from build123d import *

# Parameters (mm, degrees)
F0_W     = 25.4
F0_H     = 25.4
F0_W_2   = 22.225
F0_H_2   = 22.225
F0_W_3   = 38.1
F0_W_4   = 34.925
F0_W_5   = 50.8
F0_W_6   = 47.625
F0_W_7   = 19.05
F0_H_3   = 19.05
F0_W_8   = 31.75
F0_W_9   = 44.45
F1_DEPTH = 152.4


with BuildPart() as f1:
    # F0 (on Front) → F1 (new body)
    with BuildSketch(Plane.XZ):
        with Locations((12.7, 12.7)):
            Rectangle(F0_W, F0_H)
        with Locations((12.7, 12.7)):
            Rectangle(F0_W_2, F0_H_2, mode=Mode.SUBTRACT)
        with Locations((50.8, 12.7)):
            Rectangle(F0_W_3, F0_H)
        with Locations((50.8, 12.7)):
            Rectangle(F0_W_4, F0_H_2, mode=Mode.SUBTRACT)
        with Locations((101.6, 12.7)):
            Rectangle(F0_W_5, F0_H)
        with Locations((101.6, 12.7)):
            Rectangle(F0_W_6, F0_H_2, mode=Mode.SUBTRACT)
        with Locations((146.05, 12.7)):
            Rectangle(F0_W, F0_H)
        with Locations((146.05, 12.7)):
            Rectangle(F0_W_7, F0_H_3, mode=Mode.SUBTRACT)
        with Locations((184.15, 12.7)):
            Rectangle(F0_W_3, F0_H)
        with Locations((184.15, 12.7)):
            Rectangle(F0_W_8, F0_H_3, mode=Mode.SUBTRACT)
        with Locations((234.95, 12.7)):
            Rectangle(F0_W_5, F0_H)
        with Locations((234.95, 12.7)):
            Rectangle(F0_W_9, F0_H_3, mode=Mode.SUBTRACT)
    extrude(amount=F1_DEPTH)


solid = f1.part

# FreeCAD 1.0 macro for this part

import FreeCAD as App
import Part
import Sketcher
from FreeCAD import Vector
Q = App.Units.Quantity

doc = App.newDocument("Part")
body = doc.addObject("PartDesign::Body", "Body")
body.AllowCompound = True

sketch1 = body.newObject("Sketcher::SketchObject", "Sketch")
sketch1.AttachmentSupport = (doc.getObject("XZ_Plane"), [""])
sketch1.MapMode = "FlatFace"
sketch1.addGeometry(Part.LineSegment(Vector(0, 25, 0), Vector(0, 0, 0)), False)
sketch1.addGeometry(Part.LineSegment(Vector(0, 0, 0), Vector(25, 0, 0)), False)
sketch1.addGeometry(Part.LineSegment(Vector(25, 0, 0), Vector(25, 25, 0)), False)
sketch1.addGeometry(Part.LineSegment(Vector(25, 25, 0), Vector(0, 25, 0)), False)
sketch1.addGeometry(Part.LineSegment(Vector(24, 2, 0), Vector(2, 2, 0)), False)
sketch1.addGeometry(Part.LineSegment(Vector(2, 2, 0), Vector(2, 24, 0)), False)
sketch1.addGeometry(Part.LineSegment(Vector(2, 24, 0), Vector(24, 24, 0)), False)
sketch1.addGeometry(Part.LineSegment(Vector(24, 24, 0), Vector(24, 2, 0)), False)
sketch1.addGeometry(Part.LineSegment(Vector(32, 25, 0), Vector(32, 0, 0)), False)
sketch1.addGeometry(Part.LineSegment(Vector(32, 0, 0), Vector(70, 0, 0)), False)
sketch1.addGeometry(Part.LineSegment(Vector(70, 0, 0), Vector(70, 25, 0)), False)
sketch1.addGeometry(Part.LineSegment(Vector(70, 25, 0), Vector(32, 25, 0)), False)
sketch1.addGeometry(Part.LineSegment(Vector(68, 2, 0), Vector(33, 2, 0)), False)
sketch1.addGeometry(Part.LineSegment(Vector(33, 2, 0), Vector(33, 24, 0)), False)
sketch1.addGeometry(Part.LineSegment(Vector(33, 24, 0), Vector(68, 24, 0)), False)
sketch1.addGeometry(Part.LineSegment(Vector(68, 24, 0), Vector(68, 2, 0)), False)
sketch1.addGeometry(Part.LineSegment(Vector(76, 25, 0), Vector(76, 0, 0)), False)
sketch1.addGeometry(Part.LineSegment(Vector(76, 0, 0), Vector(127, 0, 0)), False)
sketch1.addGeometry(Part.LineSegment(Vector(127, 0, 0), Vector(127, 25, 0)), False)
sketch1.addGeometry(Part.LineSegment(Vector(127, 25, 0), Vector(76, 25, 0)), False)
sketch1.addGeometry(Part.LineSegment(Vector(125, 2, 0), Vector(78, 2, 0)), False)
sketch1.addGeometry(Part.LineSegment(Vector(78, 2, 0), Vector(78, 24, 0)), False)
sketch1.addGeometry(Part.LineSegment(Vector(78, 24, 0), Vector(125, 24, 0)), False)
sketch1.addGeometry(Part.LineSegment(Vector(125, 24, 0), Vector(125, 2, 0)), False)
sketch1.addGeometry(Part.LineSegment(Vector(133, 25, 0), Vector(133, 0, 0)), False)
sketch1.addGeometry(Part.LineSegment(Vector(133, 0, 0), Vector(159, 0, 0)), False)
sketch1.addGeometry(Part.LineSegment(Vector(159, 0, 0), Vector(159, 25, 0)), False)
sketch1.addGeometry(Part.LineSegment(Vector(159, 25, 0), Vector(133, 25, 0)), False)
sketch1.addGeometry(Part.LineSegment(Vector(156, 3, 0), Vector(137, 3, 0)), False)
sketch1.addGeometry(Part.LineSegment(Vector(137, 3, 0), Vector(137, 22, 0)), False)
sketch1.addGeometry(Part.LineSegment(Vector(137, 22, 0), Vector(156, 22, 0)), False)
sketch1.addGeometry(Part.LineSegment(Vector(156, 22, 0), Vector(156, 3, 0)), False)
sketch1.addGeometry(Part.LineSegment(Vector(165, 25, 0), Vector(165, 0, 0)), False)
sketch1.addGeometry(Part.LineSegment(Vector(165, 0, 0), Vector(203, 0, 0)), False)
sketch1.addGeometry(Part.LineSegment(Vector(203, 0, 0), Vector(203, 25, 0)), False)
sketch1.addGeometry(Part.LineSegment(Vector(203, 25, 0), Vector(165, 25, 0)), False)
sketch1.addGeometry(Part.LineSegment(Vector(200, 3, 0), Vector(168, 3, 0)), False)
sketch1.addGeometry(Part.LineSegment(Vector(168, 3, 0), Vector(168, 22, 0)), False)
sketch1.addGeometry(Part.LineSegment(Vector(168, 22, 0), Vector(200, 22, 0)), False)
sketch1.addGeometry(Part.LineSegment(Vector(200, 22, 0), Vector(200, 3, 0)), False)
sketch1.addGeometry(Part.LineSegment(Vector(210, 25, 0), Vector(210, 0, 0)), False)
sketch1.addGeometry(Part.LineSegment(Vector(210, 0, 0), Vector(260, 0, 0)), False)
sketch1.addGeometry(Part.LineSegment(Vector(260, 0, 0), Vector(260, 25, 0)), False)
sketch1.addGeometry(Part.LineSegment(Vector(260, 25, 0), Vector(210, 25, 0)), False)
sketch1.addGeometry(Part.LineSegment(Vector(257, 3, 0), Vector(213, 3, 0)), False)
sketch1.addGeometry(Part.LineSegment(Vector(213, 3, 0), Vector(213, 22, 0)), False)
sketch1.addGeometry(Part.LineSegment(Vector(213, 22, 0), Vector(257, 22, 0)), False)
sketch1.addGeometry(Part.LineSegment(Vector(257, 22, 0), Vector(257, 3, 0)), False)
sketch1.addConstraint(Sketcher.Constraint("Coincident", 0, 2, 1, 1))
sketch1.addConstraint(Sketcher.Constraint("Coincident", 1, 2, 2, 1))
sketch1.addConstraint(Sketcher.Constraint("Coincident", 2, 2, 3, 1))
sketch1.addConstraint(Sketcher.Constraint("Coincident", 3, 2, 0, 1))
sketch1.addConstraint(Sketcher.Constraint("Coincident", 4, 2, 5, 1))
sketch1.addConstraint(Sketcher.Constraint("Coincident", 5, 2, 6, 1))
sketch1.addConstraint(Sketcher.Constraint("Coincident", 6, 2, 7, 1))
sketch1.addConstraint(Sketcher.Constraint("Coincident", 7, 2, 4, 1))
sketch1.addConstraint(Sketcher.Constraint("Coincident", 8, 2, 9, 1))
sketch1.addConstraint(Sketcher.Constraint("Coincident", 9, 2, 10, 1))
sketch1.addConstraint(Sketcher.Constraint("Coincident", 10, 2, 11, 1))
sketch1.addConstraint(Sketcher.Constraint("Coincident", 11, 2, 8, 1))
sketch1.addConstraint(Sketcher.Constraint("Coincident", 12, 2, 13, 1))
sketch1.addConstraint(Sketcher.Constraint("Coincident", 13, 2, 14, 1))
sketch1.addConstraint(Sketcher.Constraint("Coincident", 14, 2, 15, 1))
sketch1.addConstraint(Sketcher.Constraint("Coincident", 15, 2, 12, 1))
sketch1.addConstraint(Sketcher.Constraint("Coincident", 16, 2, 17, 1))
sketch1.addConstraint(Sketcher.Constraint("Coincident", 17, 2, 18, 1))
sketch1.addConstraint(Sketcher.Constraint("Coincident", 18, 2, 19, 1))
sketch1.addConstraint(Sketcher.Constraint("Coincident", 19, 2, 16, 1))
sketch1.addConstraint(Sketcher.Constraint("Coincident", 20, 2, 21, 1))
sketch1.addConstraint(Sketcher.Constraint("Coincident", 21, 2, 22, 1))
sketch1.addConstraint(Sketcher.Constraint("Coincident", 22, 2, 23, 1))
sketch1.addConstraint(Sketcher.Constraint("Coincident", 23, 2, 20, 1))
sketch1.addConstraint(Sketcher.Constraint("Coincident", 24, 2, 25, 1))
sketch1.addConstraint(Sketcher.Constraint("Coincident", 25, 2, 26, 1))
sketch1.addConstraint(Sketcher.Constraint("Coincident", 26, 2, 27, 1))
sketch1.addConstraint(Sketcher.Constraint("Coincident", 27, 2, 24, 1))
sketch1.addConstraint(Sketcher.Constraint("Coincident", 28, 2, 29, 1))
sketch1.addConstraint(Sketcher.Constraint("Coincident", 29, 2, 30, 1))
sketch1.addConstraint(Sketcher.Constraint("Coincident", 30, 2, 31, 1))
sketch1.addConstraint(Sketcher.Constraint("Coincident", 31, 2, 28, 1))
sketch1.addConstraint(Sketcher.Constraint("Coincident", 32, 2, 33, 1))
sketch1.addConstraint(Sketcher.Constraint("Coincident", 33, 2, 34, 1))
sketch1.addConstraint(Sketcher.Constraint("Coincident", 34, 2, 35, 1))
sketch1.addConstraint(Sketcher.Constraint("Coincident", 35, 2, 32, 1))
sketch1.addConstraint(Sketcher.Constraint("Coincident", 36, 2, 37, 1))
sketch1.addConstraint(Sketcher.Constraint("Coincident", 37, 2, 38, 1))
sketch1.addConstraint(Sketcher.Constraint("Coincident", 38, 2, 39, 1))
sketch1.addConstraint(Sketcher.Constraint("Coincident", 39, 2, 36, 1))
sketch1.addConstraint(Sketcher.Constraint("Coincident", 40, 2, 41, 1))
sketch1.addConstraint(Sketcher.Constraint("Coincident", 41, 2, 42, 1))
sketch1.addConstraint(Sketcher.Constraint("Coincident", 42, 2, 43, 1))
sketch1.addConstraint(Sketcher.Constraint("Coincident", 43, 2, 40, 1))
sketch1.addConstraint(Sketcher.Constraint("Coincident", 44, 2, 45, 1))
sketch1.addConstraint(Sketcher.Constraint("Coincident", 45, 2, 46, 1))
sketch1.addConstraint(Sketcher.Constraint("Coincident", 46, 2, 47, 1))
sketch1.addConstraint(Sketcher.Constraint("Coincident", 47, 2, 44, 1))
sketch1.addConstraint(Sketcher.Constraint("Vertical", 0))
sketch1.addConstraint(Sketcher.Constraint("Horizontal", 1))
sketch1.addConstraint(Sketcher.Constraint("Vertical", 2))
sketch1.addConstraint(Sketcher.Constraint("Horizontal", 3))
sketch1.addConstraint(Sketcher.Constraint("Horizontal", 4))
sketch1.addConstraint(Sketcher.Constraint("Vertical", 5))
sketch1.addConstraint(Sketcher.Constraint("Horizontal", 6))
sketch1.addConstraint(Sketcher.Constraint("Vertical", 7))
sketch1.addConstraint(Sketcher.Constraint("Vertical", 8))
sketch1.addConstraint(Sketcher.Constraint("Horizontal", 9))
sketch1.addConstraint(Sketcher.Constraint("Vertical", 10))
sketch1.addConstraint(Sketcher.Constraint("Horizontal", 11))
sketch1.addConstraint(Sketcher.Constraint("Horizontal", 12))
sketch1.addConstraint(Sketcher.Constraint("Vertical", 13))
sketch1.addConstraint(Sketcher.Constraint("Horizontal", 14))
sketch1.addConstraint(Sketcher.Constraint("Vertical", 15))
sketch1.addConstraint(Sketcher.Constraint("Vertical", 16))
sketch1.addConstraint(Sketcher.Constraint("Horizontal", 17))
sketch1.addConstraint(Sketcher.Constraint("Vertical", 18))
sketch1.addConstraint(Sketcher.Constraint("Horizontal", 19))
sketch1.addConstraint(Sketcher.Constraint("Horizontal", 20))
sketch1.addConstraint(Sketcher.Constraint("Vertical", 21))
sketch1.addConstraint(Sketcher.Constraint("Horizontal", 22))
sketch1.addConstraint(Sketcher.Constraint("Vertical", 23))
sketch1.addConstraint(Sketcher.Constraint("Vertical", 24))
sketch1.addConstraint(Sketcher.Constraint("Horizontal", 25))
sketch1.addConstraint(Sketcher.Constraint("Vertical", 26))
sketch1.addConstraint(Sketcher.Constraint("Horizontal", 27))
sketch1.addConstraint(Sketcher.Constraint("Horizontal", 28))
sketch1.addConstraint(Sketcher.Constraint("Vertical", 29))
sketch1.addConstraint(Sketcher.Constraint("Horizontal", 30))
sketch1.addConstraint(Sketcher.Constraint("Vertical", 31))
sketch1.addConstraint(Sketcher.Constraint("Vertical", 32))
sketch1.addConstraint(Sketcher.Constraint("Horizontal", 33))
sketch1.addConstraint(Sketcher.Constraint("Vertical", 34))
sketch1.addConstraint(Sketcher.Constraint("Horizontal", 35))
sketch1.addConstraint(Sketcher.Constraint("Horizontal", 36))
sketch1.addConstraint(Sketcher.Constraint("Vertical", 37))
sketch1.addConstraint(Sketcher.Constraint("Horizontal", 38))
sketch1.addConstraint(Sketcher.Constraint("Vertical", 39))
sketch1.addConstraint(Sketcher.Constraint("Vertical", 40))
sketch1.addConstraint(Sketcher.Constraint("Horizontal", 41))
sketch1.addConstraint(Sketcher.Constraint("Vertical", 42))
sketch1.addConstraint(Sketcher.Constraint("Horizontal", 43))
sketch1.addConstraint(Sketcher.Constraint("Horizontal", 44))
sketch1.addConstraint(Sketcher.Constraint("Vertical", 45))
sketch1.addConstraint(Sketcher.Constraint("Horizontal", 46))
sketch1.addConstraint(Sketcher.Constraint("Vertical", 47))
sketch1.addConstraint(Sketcher.Constraint("Coincident", 0, 2, -1, 1))
sketch1.addConstraint(Sketcher.Constraint("PointOnObject", 8, 2, -1))
sketch1.addConstraint(Sketcher.Constraint("PointOnObject", 16, 2, -1))
sketch1.addConstraint(Sketcher.Constraint("PointOnObject", 24, 2, -1))
sketch1.addConstraint(Sketcher.Constraint("PointOnObject", 32, 2, -1))
sketch1.addConstraint(Sketcher.Constraint("PointOnObject", 40, 2, -1))
sketch1.addConstraint(Sketcher.Constraint("Horizontal", 3, 2, 10, 2))
sketch1.addConstraint(Sketcher.Constraint("Horizontal", 7, 2, 12, 2))
sketch1.addConstraint(Sketcher.Constraint("Horizontal", 6, 2, 13, 2))
sketch1.addConstraint(Sketcher.Constraint("Horizontal", 11, 2, 18, 2))
sketch1.addConstraint(Sketcher.Constraint("Horizontal", 15, 2, 20, 2))
sketch1.addConstraint(Sketcher.Constraint("Horizontal", 14, 2, 21, 2))
sketch1.addConstraint(Sketcher.Constraint("Horizontal", 19, 2, 26, 2))
sketch1.addConstraint(Sketcher.Constraint("Horizontal", 27, 2, 34, 2))
sketch1.addConstraint(Sketcher.Constraint("Horizontal", 31, 2, 36, 2))
sketch1.addConstraint(Sketcher.Constraint("Horizontal", 30, 2, 37, 2))
sketch1.addConstraint(Sketcher.Constraint("Horizontal", 35, 2, 42, 2))
sketch1.addConstraint(Sketcher.Constraint("Horizontal", 39, 2, 44, 2))
sketch1.addConstraint(Sketcher.Constraint("Horizontal", 38, 2, 45, 2))
sketch1.addConstraint(Sketcher.Constraint("Equal", 3, 25))
sketch1.addConstraint(Sketcher.Constraint("Equal", 11, 33))
sketch1.addConstraint(Sketcher.Constraint("Equal", 19, 41))
sketch1.addConstraint(Sketcher.Constraint("Equal", 27, 0))
sketch1.addConstraint(Sketcher.Constraint("Equal", 6, 5))
sketch1.addConstraint(Sketcher.Constraint("Equal", 30, 29))
sketch1.addConstraint(Sketcher.Constraint("DistanceX", 1, 1, 1, 2, Q("1 in")))
sketch1.addConstraint(Sketcher.Constraint("DistanceX", 17, 1, 17, 2, Q("2 in")))
sketch1.addConstraint(Sketcher.Constraint("DistanceX", 9, 1, 9, 2, Q("1.5 in")))
sketch1.addConstraint(Sketcher.Constraint("DistanceX", -1, 1, 16, 2, Q("3 in")))
sketch1.addConstraint(Sketcher.Constraint("DistanceX", -1, 1, 33, 2, Q("8 in")))
sketch1.addConstraint(Sketcher.Constraint("DistanceX", 28, 2, 28, 1, Q("0.75 in")))
sketch1.addConstraint(Sketcher.Constraint("DistanceX", 36, 2, 36, 1, Q("1.25 in")))
sketch1.addConstraint(Sketcher.Constraint("DistanceX", 44, 2, 44, 1, Q("1.75 in")))
sketch1.addConstraint(Sketcher.Constraint("DistanceX", 31, 2, 36, 2, Q("0.5 in")))
sketch1.addConstraint(Sketcher.Constraint("DistanceX", 39, 2, 44, 2, Q("0.5 in")))
sketch1.addConstraint(Sketcher.Constraint("DistanceX", 4, 2, 4, 1, Q("0.875 in")))
sketch1.addConstraint(Sketcher.Constraint("DistanceX", 12, 2, 12, 1, Q("1.375 in")))
sketch1.addConstraint(Sketcher.Constraint("DistanceX", 20, 2, 20, 1, Q("1.875 in")))
sketch1.addConstraint(Sketcher.Constraint("DistanceX", -1, 1, 8, 2, Q("1.25 in")))
sketch1.addConstraint(Sketcher.Constraint("DistanceX", -1, 1, 24, 2, Q("5.25 in")))
sketch1.addConstraint(Sketcher.Constraint("DistanceX", -1, 1, 40, 2, Q("8.25 in")))
sketch1.addConstraint(Sketcher.Constraint("DistanceX", -1, 1, 4, 2, Q("0.0625 in")))
sketch1.addConstraint(Sketcher.Constraint("DistanceY", -1, 1, 4, 2, Q("0.0625 in")))
sketch1.addConstraint(Sketcher.Constraint("DistanceX", -1, 1, 12, 2, Q("1.3125 in")))
sketch1.addConstraint(Sketcher.Constraint("DistanceX", -1, 1, 20, 2, Q("3.0625 in")))
sketch1.addConstraint(Sketcher.Constraint("DistanceX", -1, 1, 28, 2, Q("5.375 in")))
sketch1.addConstraint(Sketcher.Constraint("DistanceY", -1, 1, 28, 2, Q("0.125 in")))
pad1 = body.newObject("PartDesign::Pad", "Pad")
pad1.Profile = sketch1
pad1.Length = Q("6 in")

doc.recompute()
